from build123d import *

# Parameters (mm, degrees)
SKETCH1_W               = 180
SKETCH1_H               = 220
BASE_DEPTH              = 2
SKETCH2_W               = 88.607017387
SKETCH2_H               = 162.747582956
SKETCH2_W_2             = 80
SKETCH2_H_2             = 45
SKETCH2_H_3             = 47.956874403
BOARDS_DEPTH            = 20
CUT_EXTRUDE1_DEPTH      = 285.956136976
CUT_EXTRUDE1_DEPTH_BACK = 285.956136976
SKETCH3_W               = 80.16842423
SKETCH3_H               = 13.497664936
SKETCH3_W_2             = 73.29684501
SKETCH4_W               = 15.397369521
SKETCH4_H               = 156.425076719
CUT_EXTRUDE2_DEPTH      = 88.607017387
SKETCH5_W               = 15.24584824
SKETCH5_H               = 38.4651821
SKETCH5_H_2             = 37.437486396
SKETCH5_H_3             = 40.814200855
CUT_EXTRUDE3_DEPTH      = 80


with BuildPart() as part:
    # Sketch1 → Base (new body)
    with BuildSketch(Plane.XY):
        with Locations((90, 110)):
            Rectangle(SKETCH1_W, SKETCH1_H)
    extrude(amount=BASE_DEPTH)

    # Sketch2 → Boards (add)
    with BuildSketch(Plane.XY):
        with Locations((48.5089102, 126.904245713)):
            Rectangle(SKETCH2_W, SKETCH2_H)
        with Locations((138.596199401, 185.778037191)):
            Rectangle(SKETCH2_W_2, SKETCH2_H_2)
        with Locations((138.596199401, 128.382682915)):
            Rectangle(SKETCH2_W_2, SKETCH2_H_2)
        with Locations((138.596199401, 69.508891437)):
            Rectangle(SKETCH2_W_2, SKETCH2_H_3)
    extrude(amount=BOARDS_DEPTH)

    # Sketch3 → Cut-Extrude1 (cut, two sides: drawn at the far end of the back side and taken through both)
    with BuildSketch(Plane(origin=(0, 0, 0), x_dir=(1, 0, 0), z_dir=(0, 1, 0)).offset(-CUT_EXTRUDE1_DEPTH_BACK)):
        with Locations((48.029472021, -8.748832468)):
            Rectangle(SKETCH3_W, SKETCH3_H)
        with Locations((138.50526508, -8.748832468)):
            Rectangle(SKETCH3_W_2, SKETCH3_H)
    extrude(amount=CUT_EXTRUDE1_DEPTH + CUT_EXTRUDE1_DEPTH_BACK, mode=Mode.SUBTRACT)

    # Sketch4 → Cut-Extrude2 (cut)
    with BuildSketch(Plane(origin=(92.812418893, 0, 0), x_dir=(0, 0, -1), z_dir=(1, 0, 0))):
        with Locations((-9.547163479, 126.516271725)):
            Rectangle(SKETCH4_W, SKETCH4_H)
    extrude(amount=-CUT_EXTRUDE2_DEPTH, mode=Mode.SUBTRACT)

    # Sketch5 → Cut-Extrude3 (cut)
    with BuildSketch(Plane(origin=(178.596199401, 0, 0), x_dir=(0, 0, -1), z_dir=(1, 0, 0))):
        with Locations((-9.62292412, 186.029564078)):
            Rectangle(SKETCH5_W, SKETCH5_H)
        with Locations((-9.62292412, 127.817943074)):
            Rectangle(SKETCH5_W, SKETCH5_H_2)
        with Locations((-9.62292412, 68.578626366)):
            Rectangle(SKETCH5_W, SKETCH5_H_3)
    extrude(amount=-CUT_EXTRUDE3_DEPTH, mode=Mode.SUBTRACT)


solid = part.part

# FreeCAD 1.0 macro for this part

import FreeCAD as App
import Part
import Sketcher

V = App.Vector
Q = App.Units.Quantity

doc = App.newDocument("Part")
body = doc.addObject("PartDesign::Body", "Body")

sketch1 = body.newObject("Sketcher::SketchObject", "Sketch")
sketch1.AttachmentSupport = (doc.getObject("XY_Plane"), [""])
sketch1.MapMode = "FlatFace"
sketch1.addGeometry([
    Part.LineSegment(V(0, 220, 0), V(0, 0, 0)),
    Part.LineSegment(V(0, 0, 0), V(180, 0, 0)),
    Part.LineSegment(V(180, 0, 0), V(180, 220, 0)),
    Part.LineSegment(V(180, 220, 0), V(0, 220, 0)),
], False)
sketch1.addConstraint([
    Sketcher.Constraint("Coincident", 0, 2, 1, 1),
    Sketcher.Constraint("Coincident", 1, 2, 2, 1),
    Sketcher.Constraint("Coincident", 2, 2, 3, 1),
    Sketcher.Constraint("Coincident", 3, 2, 0, 1),
    Sketcher.Constraint("Vertical", 0),
    Sketcher.Constraint("Horizontal", 1),
    Sketcher.Constraint("Vertical", 2),
    Sketcher.Constraint("Horizontal", 3),
    Sketcher.Constraint("Coincident", 0, 2, -1, 1),
    Sketcher.Constraint("DistanceX", 1, 1, 1, 2, Q("180 mm")),
    Sketcher.Constraint("DistanceY", 0, 2, 0, 1, Q("220 mm")),
])
pad1 = body.newObject("PartDesign::Pad", "Pad")
pad1.Profile = sketch1
pad1.Length = 2

sketch2 = body.newObject("Sketcher::SketchObject", "Sketch001")
sketch2.AttachmentSupport = (doc.getObject("XY_Plane"), [""])
sketch2.MapMode = "FlatFace"
sketch2.addGeometry([
    Part.LineSegment(V(4, 208, 0), V(4, 46, 0)),
    Part.LineSegment(V(4, 46, 0), V(93, 46, 0)),
    Part.LineSegment(V(93, 46, 0), V(93, 208, 0)),
    Part.LineSegment(V(93, 208, 0), V(4, 208, 0)),
    Part.LineSegment(V(99, 208, 0), V(99, 163, 0)),
    Part.LineSegment(V(99, 163, 0), V(179, 163, 0)),
    Part.LineSegment(V(179, 163, 0), V(179, 208, 0)),
    Part.LineSegment(V(179, 208, 0), V(99, 208, 0)),
    Part.LineSegment(V(99, 151, 0), V(99, 106, 0)),
    Part.LineSegment(V(99, 106, 0), V(179, 106, 0)),
    Part.LineSegment(V(179, 106, 0), V(179, 151, 0)),
    Part.LineSegment(V(179, 151, 0), V(99, 151, 0)),
    Part.LineSegment(V(99, 93, 0), V(99, 46, 0)),
    Part.LineSegment(V(99, 46, 0), V(179, 46, 0)),
    Part.LineSegment(V(179, 46, 0), V(179, 93, 0)),
    Part.LineSegment(V(179, 93, 0), V(99, 93, 0)),
], False)
sketch2.addConstraint([
    Sketcher.Constraint("Coincident", 0, 2, 1, 1),
    Sketcher.Constraint("Coincident", 1, 2, 2, 1),
    Sketcher.Constraint("Coincident", 2, 2, 3, 1),
    Sketcher.Constraint("Coincident", 3, 2, 0, 1),
    Sketcher.Constraint("Coincident", 4, 2, 5, 1),
    Sketcher.Constraint("Coincident", 5, 2, 6, 1),
    Sketcher.Constraint("Coincident", 6, 2, 7, 1),
    Sketcher.Constraint("Coincident", 7, 2, 4, 1),
    Sketcher.Constraint("Coincident", 8, 2, 9, 1),
    Sketcher.Constraint("Coincident", 9, 2, 10, 1),
    Sketcher.Constraint("Coincident", 10, 2, 11, 1),
    Sketcher.Constraint("Coincident", 11, 2, 8, 1),
    Sketcher.Constraint("Coincident", 12, 2, 13, 1),
    Sketcher.Constraint("Coincident", 13, 2, 14, 1),
    Sketcher.Constraint("Coincident", 14, 2, 15, 1),
    Sketcher.Constraint("Coincident", 15, 2, 12, 1),
    Sketcher.Constraint("Vertical", 0),
    Sketcher.Constraint("Horizontal", 1),
    Sketcher.Constraint("Vertical", 2),
    Sketcher.Constraint("Horizontal", 3),
    Sketcher.Constraint("Vertical", 4),
    Sketcher.Constraint("Horizontal", 5),
    Sketcher.Constraint("Vertical", 6),
    Sketcher.Constraint("Horizontal", 7),
    Sketcher.Constraint("Vertical", 8),
    Sketcher.Constraint("Horizontal", 9),
    Sketcher.Constraint("Vertical", 10),
    Sketcher.Constraint("Horizontal", 11),
    Sketcher.Constraint("Vertical", 12),
    Sketcher.Constraint("Horizontal", 13),
    Sketcher.Constraint("Vertical", 14),
    Sketcher.Constraint("Horizontal", 15),
    Sketcher.Constraint("Horizontal", 3, 2, 6, 2),
    Sketcher.Constraint("Horizontal", 1, 2, 12, 2),
    Sketcher.Constraint("Vertical", 7, 2, 8, 2),
    Sketcher.Constraint("Vertical", 6, 2, 9, 2),
    Sketcher.Constraint("Vertical", 11, 2, 12, 2),
    Sketcher.Constraint("Vertical", 10, 2, 13, 2),
    Sketcher.Constraint("Equal", 6, 8),
    Sketcher.Constraint("DistanceX", 5, 1, 5, 2, Q("80 mm")),
    Sketcher.Constraint("DistanceY", 4, 2, 4, 1, Q("45 mm")),
    Sketcher.Constraint("DistanceX", -1, 1, 0, 2, Q("4.205402 mm")),
    Sketcher.Constraint("DistanceX", -1, 1, 4, 2, Q("98.596199 mm")),
    Sketcher.Constraint("DistanceX", 1, 1, 1, 2, Q("88.607017 mm")),
    Sketcher.Constraint("DistanceY", 0, 2, 0, 1, Q("162.747583 mm")),
    Sketcher.Constraint("DistanceY", 12, 2, 12, 1, Q("47.956874 mm")),
    Sketcher.Constraint("DistanceY", -1, 1, 14, 2, Q("93.487329 mm")),
    Sketcher.Constraint("DistanceY", 1, 2, 8, 2, Q("60.352229 mm")),
])
pad2 = body.newObject("PartDesign::Pad", "Pad001")
pad2.Profile = sketch2
pad2.Length = 20

sketch3 = body.newObject("Sketcher::SketchObject", "Sketch002")
sketch3.AttachmentSupport = (doc.getObject("XZ_Plane"), [""])
sketch3.MapMode = "FlatFace"
sketch3.addGeometry([
    Part.LineSegment(V(8, 2, 0), V(8, 15, 0)),
    Part.LineSegment(V(8, 15, 0), V(88, 15, 0)),
    Part.LineSegment(V(88, 15, 0), V(88, 2, 0)),
    Part.LineSegment(V(88, 2, 0), V(8, 2, 0)),
    Part.LineSegment(V(102, 2, 0), V(102, 15, 0)),
    Part.LineSegment(V(102, 15, 0), V(175, 15, 0)),
    Part.LineSegment(V(175, 15, 0), V(175, 2, 0)),
    Part.LineSegment(V(175, 2, 0), V(102, 2, 0)),
], False)
sketch3.addConstraint([
    Sketcher.Constraint("Coincident", 0, 2, 1, 1),
    Sketcher.Constraint("Coincident", 1, 2, 2, 1),
    Sketcher.Constraint("Coincident", 2, 2, 3, 1),
    Sketcher.Constraint("Coincident", 3, 2, 0, 1),
    Sketcher.Constraint("Coincident", 4, 2, 5, 1),
    Sketcher.Constraint("Coincident", 5, 2, 6, 1),
    Sketcher.Constraint("Coincident", 6, 2, 7, 1),
    Sketcher.Constraint("Coincident", 7, 2, 4, 1),
    Sketcher.Constraint("Vertical", 0),
    Sketcher.Constraint("Horizontal", 1),
    Sketcher.Constraint("Vertical", 2),
    Sketcher.Constraint("Horizontal", 3),
    Sketcher.Constraint("Vertical", 4),
    Sketcher.Constraint("Horizontal", 5),
    Sketcher.Constraint("Vertical", 6),
    Sketcher.Constraint("Horizontal", 7),
    Sketcher.Constraint("Horizontal", 1, 2, 4, 2),
    Sketcher.Constraint("Horizontal", 3, 2, 6, 2),
    Sketcher.Constraint("DistanceY", -1, 1, 2, 2, Q("2 mm")),
    Sketcher.Constraint("DistanceX", 1, 1, 1, 2, Q("80.168424 mm")),
    Sketcher.Constraint("DistanceX", 5, 1, 5, 2, Q("73.296845 mm")),
    Sketcher.Constraint("DistanceY", 0, 1, 0, 2, Q("13.497665 mm")),
    Sketcher.Constraint("DistanceX", -1, 1, 0, 2, Q("7.94526 mm")),
    Sketcher.Constraint("DistanceX", 1, 2, 4, 2, Q("13.743158 mm")),
])
pocket1 = body.newObject("PartDesign::Pocket", "Pocket")
pocket1.Profile = sketch3
pocket1.Type = "ThroughAll"
pocket1.Midplane = True

sketch4 = body.newObject("Sketcher::SketchObject", "Sketch003")
sketch4.AttachmentSupport = (doc.getObject("YZ_Plane"), [""])
sketch4.MapMode = "FlatFace"
sketch4.AttachmentOffset = App.Placement(V(0, 0, 92.812419), App.Rotation())
sketch4.addGeometry([
    Part.LineSegment(V(205, 17, 0), V(48, 17, 0)),
    Part.LineSegment(V(48, 17, 0), V(48, 2, 0)),
    Part.LineSegment(V(48, 2, 0), V(205, 2, 0)),
    Part.LineSegment(V(205, 2, 0), V(205, 17, 0)),
], False)
sketch4.addConstraint([
    Sketcher.Constraint("Coincident", 0, 2, 1, 1),
    Sketcher.Constraint("Coincident", 1, 2, 2, 1),
    Sketcher.Constraint("Coincident", 2, 2, 3, 1),
    Sketcher.Constraint("Coincident", 3, 2, 0, 1),
    Sketcher.Constraint("Horizontal", 0),
    Sketcher.Constraint("Vertical", 1),
    Sketcher.Constraint("Horizontal", 2),
    Sketcher.Constraint("Vertical", 3),
    Sketcher.Constraint("DistanceY", 1, 2, 1, 1, Q("15.39737 mm")),
    Sketcher.Constraint("DistanceX", 0, 2, 0, 1, Q("156.425077 mm")),
    Sketcher.Constraint("DistanceY", -1, 1, 0, 2, Q("17.245848 mm")),
    Sketcher.Constraint("DistanceX", -1, 1, 2, 2, Q("204.72881 mm")),
])
pocket2 = body.newObject("PartDesign::Pocket", "Pocket001")
pocket2.Profile = sketch4
pocket2.Length = 88.607017

sketch5 = body.newObject("Sketcher::SketchObject", "Sketch004")
sketch5.AttachmentSupport = (doc.getObject("YZ_Plane"), [""])
sketch5.MapMode = "FlatFace"
sketch5.AttachmentOffset = App.Placement(V(0, 0, 178.596199), App.Rotation())
sketch5.addGeometry([
    Part.LineSegment(V(205, 17, 0), V(167, 17, 0)),
    Part.LineSegment(V(167, 17, 0), V(167, 2, 0)),
    Part.LineSegment(V(167, 2, 0), V(205, 2, 0)),
    Part.LineSegment(V(205, 2, 0), V(205, 17, 0)),
    Part.LineSegment(V(147, 17, 0), V(109, 17, 0)),
    Part.LineSegment(V(109, 17, 0), V(109, 2, 0)),
    Part.LineSegment(V(109, 2, 0), V(147, 2, 0)),
    Part.LineSegment(V(147, 2, 0), V(147, 17, 0)),
    Part.LineSegment(V(89, 17, 0), V(48, 17, 0)),
    Part.LineSegment(V(48, 17, 0), V(48, 2, 0)),
    Part.LineSegment(V(48, 2, 0), V(89, 2, 0)),
    Part.LineSegment(V(89, 2, 0), V(89, 17, 0)),
], False)
sketch5.addConstraint([
    Sketcher.Constraint("Coincident", 0, 2, 1, 1),
    Sketcher.Constraint("Coincident", 1, 2, 2, 1),
    Sketcher.Constraint("Coincident", 2, 2, 3, 1),
    Sketcher.Constraint("Coincident", 3, 2, 0, 1),
    Sketcher.Constraint("Coincident", 4, 2, 5, 1),
    Sketcher.Constraint("Coincident", 5, 2, 6, 1),
    Sketcher.Constraint("Coincident", 6, 2, 7, 1),
    Sketcher.Constraint("Coincident", 7, 2, 4, 1),
    Sketcher.Constraint("Coincident", 8, 2, 9, 1),
    Sketcher.Constraint("Coincident", 9, 2, 10, 1),
    Sketcher.Constraint("Coincident", 10, 2, 11, 1),
    Sketcher.Constraint("Coincident", 11, 2, 8, 1),
    Sketcher.Constraint("Horizontal", 0),
    Sketcher.Constraint("Vertical", 1),
    Sketcher.Constraint("Horizontal", 2),
    Sketcher.Constraint("Vertical", 3),
    Sketcher.Constraint("Horizontal", 4),
    Sketcher.Constraint("Vertical", 5),
    Sketcher.Constraint("Horizontal", 6),
    Sketcher.Constraint("Vertical", 7),
    Sketcher.Constraint("Horizontal", 8),
    Sketcher.Constraint("Vertical", 9),
    Sketcher.Constraint("Horizontal", 10),
    Sketcher.Constraint("Vertical", 11),
    Sketcher.Constraint("Horizontal", 3, 2, 4, 2),
    Sketcher.Constraint("Horizontal", 2, 2, 5, 2),
    Sketcher.Constraint("Horizontal", 7, 2, 8, 2),
    Sketcher.Constraint("Horizontal", 6, 2, 9, 2),
    Sketcher.Constraint("DistanceY", -1, 1, 1, 2, Q("2 mm")),
    Sketcher.Constraint("DistanceX", 8, 2, 8, 1, Q("40.814201 mm")),
    Sketcher.Constraint("DistanceY", 1, 2, 1, 1, Q("15.245848 mm")),
    Sketcher.Constraint("DistanceX", -1, 1, 4, 2, Q("109.0992 mm")),
    Sketcher.Constraint("DistanceX", 0, 2, 0, 1, Q("38.465182 mm")),
    Sketcher.Constraint("DistanceX", 4, 2, 4, 1, Q("37.437486 mm")),
    Sketcher.Constraint("DistanceX", 6, 2, 2, 2, Q("58.725469 mm")),
    Sketcher.Constraint("DistanceX", 8, 2, 7, 2, Q("98.36516 mm")),
])
pocket3 = body.newObject("PartDesign::Pocket", "Pocket002")
pocket3.Profile = sketch5
pocket3.Length = 80

doc.recompute()
